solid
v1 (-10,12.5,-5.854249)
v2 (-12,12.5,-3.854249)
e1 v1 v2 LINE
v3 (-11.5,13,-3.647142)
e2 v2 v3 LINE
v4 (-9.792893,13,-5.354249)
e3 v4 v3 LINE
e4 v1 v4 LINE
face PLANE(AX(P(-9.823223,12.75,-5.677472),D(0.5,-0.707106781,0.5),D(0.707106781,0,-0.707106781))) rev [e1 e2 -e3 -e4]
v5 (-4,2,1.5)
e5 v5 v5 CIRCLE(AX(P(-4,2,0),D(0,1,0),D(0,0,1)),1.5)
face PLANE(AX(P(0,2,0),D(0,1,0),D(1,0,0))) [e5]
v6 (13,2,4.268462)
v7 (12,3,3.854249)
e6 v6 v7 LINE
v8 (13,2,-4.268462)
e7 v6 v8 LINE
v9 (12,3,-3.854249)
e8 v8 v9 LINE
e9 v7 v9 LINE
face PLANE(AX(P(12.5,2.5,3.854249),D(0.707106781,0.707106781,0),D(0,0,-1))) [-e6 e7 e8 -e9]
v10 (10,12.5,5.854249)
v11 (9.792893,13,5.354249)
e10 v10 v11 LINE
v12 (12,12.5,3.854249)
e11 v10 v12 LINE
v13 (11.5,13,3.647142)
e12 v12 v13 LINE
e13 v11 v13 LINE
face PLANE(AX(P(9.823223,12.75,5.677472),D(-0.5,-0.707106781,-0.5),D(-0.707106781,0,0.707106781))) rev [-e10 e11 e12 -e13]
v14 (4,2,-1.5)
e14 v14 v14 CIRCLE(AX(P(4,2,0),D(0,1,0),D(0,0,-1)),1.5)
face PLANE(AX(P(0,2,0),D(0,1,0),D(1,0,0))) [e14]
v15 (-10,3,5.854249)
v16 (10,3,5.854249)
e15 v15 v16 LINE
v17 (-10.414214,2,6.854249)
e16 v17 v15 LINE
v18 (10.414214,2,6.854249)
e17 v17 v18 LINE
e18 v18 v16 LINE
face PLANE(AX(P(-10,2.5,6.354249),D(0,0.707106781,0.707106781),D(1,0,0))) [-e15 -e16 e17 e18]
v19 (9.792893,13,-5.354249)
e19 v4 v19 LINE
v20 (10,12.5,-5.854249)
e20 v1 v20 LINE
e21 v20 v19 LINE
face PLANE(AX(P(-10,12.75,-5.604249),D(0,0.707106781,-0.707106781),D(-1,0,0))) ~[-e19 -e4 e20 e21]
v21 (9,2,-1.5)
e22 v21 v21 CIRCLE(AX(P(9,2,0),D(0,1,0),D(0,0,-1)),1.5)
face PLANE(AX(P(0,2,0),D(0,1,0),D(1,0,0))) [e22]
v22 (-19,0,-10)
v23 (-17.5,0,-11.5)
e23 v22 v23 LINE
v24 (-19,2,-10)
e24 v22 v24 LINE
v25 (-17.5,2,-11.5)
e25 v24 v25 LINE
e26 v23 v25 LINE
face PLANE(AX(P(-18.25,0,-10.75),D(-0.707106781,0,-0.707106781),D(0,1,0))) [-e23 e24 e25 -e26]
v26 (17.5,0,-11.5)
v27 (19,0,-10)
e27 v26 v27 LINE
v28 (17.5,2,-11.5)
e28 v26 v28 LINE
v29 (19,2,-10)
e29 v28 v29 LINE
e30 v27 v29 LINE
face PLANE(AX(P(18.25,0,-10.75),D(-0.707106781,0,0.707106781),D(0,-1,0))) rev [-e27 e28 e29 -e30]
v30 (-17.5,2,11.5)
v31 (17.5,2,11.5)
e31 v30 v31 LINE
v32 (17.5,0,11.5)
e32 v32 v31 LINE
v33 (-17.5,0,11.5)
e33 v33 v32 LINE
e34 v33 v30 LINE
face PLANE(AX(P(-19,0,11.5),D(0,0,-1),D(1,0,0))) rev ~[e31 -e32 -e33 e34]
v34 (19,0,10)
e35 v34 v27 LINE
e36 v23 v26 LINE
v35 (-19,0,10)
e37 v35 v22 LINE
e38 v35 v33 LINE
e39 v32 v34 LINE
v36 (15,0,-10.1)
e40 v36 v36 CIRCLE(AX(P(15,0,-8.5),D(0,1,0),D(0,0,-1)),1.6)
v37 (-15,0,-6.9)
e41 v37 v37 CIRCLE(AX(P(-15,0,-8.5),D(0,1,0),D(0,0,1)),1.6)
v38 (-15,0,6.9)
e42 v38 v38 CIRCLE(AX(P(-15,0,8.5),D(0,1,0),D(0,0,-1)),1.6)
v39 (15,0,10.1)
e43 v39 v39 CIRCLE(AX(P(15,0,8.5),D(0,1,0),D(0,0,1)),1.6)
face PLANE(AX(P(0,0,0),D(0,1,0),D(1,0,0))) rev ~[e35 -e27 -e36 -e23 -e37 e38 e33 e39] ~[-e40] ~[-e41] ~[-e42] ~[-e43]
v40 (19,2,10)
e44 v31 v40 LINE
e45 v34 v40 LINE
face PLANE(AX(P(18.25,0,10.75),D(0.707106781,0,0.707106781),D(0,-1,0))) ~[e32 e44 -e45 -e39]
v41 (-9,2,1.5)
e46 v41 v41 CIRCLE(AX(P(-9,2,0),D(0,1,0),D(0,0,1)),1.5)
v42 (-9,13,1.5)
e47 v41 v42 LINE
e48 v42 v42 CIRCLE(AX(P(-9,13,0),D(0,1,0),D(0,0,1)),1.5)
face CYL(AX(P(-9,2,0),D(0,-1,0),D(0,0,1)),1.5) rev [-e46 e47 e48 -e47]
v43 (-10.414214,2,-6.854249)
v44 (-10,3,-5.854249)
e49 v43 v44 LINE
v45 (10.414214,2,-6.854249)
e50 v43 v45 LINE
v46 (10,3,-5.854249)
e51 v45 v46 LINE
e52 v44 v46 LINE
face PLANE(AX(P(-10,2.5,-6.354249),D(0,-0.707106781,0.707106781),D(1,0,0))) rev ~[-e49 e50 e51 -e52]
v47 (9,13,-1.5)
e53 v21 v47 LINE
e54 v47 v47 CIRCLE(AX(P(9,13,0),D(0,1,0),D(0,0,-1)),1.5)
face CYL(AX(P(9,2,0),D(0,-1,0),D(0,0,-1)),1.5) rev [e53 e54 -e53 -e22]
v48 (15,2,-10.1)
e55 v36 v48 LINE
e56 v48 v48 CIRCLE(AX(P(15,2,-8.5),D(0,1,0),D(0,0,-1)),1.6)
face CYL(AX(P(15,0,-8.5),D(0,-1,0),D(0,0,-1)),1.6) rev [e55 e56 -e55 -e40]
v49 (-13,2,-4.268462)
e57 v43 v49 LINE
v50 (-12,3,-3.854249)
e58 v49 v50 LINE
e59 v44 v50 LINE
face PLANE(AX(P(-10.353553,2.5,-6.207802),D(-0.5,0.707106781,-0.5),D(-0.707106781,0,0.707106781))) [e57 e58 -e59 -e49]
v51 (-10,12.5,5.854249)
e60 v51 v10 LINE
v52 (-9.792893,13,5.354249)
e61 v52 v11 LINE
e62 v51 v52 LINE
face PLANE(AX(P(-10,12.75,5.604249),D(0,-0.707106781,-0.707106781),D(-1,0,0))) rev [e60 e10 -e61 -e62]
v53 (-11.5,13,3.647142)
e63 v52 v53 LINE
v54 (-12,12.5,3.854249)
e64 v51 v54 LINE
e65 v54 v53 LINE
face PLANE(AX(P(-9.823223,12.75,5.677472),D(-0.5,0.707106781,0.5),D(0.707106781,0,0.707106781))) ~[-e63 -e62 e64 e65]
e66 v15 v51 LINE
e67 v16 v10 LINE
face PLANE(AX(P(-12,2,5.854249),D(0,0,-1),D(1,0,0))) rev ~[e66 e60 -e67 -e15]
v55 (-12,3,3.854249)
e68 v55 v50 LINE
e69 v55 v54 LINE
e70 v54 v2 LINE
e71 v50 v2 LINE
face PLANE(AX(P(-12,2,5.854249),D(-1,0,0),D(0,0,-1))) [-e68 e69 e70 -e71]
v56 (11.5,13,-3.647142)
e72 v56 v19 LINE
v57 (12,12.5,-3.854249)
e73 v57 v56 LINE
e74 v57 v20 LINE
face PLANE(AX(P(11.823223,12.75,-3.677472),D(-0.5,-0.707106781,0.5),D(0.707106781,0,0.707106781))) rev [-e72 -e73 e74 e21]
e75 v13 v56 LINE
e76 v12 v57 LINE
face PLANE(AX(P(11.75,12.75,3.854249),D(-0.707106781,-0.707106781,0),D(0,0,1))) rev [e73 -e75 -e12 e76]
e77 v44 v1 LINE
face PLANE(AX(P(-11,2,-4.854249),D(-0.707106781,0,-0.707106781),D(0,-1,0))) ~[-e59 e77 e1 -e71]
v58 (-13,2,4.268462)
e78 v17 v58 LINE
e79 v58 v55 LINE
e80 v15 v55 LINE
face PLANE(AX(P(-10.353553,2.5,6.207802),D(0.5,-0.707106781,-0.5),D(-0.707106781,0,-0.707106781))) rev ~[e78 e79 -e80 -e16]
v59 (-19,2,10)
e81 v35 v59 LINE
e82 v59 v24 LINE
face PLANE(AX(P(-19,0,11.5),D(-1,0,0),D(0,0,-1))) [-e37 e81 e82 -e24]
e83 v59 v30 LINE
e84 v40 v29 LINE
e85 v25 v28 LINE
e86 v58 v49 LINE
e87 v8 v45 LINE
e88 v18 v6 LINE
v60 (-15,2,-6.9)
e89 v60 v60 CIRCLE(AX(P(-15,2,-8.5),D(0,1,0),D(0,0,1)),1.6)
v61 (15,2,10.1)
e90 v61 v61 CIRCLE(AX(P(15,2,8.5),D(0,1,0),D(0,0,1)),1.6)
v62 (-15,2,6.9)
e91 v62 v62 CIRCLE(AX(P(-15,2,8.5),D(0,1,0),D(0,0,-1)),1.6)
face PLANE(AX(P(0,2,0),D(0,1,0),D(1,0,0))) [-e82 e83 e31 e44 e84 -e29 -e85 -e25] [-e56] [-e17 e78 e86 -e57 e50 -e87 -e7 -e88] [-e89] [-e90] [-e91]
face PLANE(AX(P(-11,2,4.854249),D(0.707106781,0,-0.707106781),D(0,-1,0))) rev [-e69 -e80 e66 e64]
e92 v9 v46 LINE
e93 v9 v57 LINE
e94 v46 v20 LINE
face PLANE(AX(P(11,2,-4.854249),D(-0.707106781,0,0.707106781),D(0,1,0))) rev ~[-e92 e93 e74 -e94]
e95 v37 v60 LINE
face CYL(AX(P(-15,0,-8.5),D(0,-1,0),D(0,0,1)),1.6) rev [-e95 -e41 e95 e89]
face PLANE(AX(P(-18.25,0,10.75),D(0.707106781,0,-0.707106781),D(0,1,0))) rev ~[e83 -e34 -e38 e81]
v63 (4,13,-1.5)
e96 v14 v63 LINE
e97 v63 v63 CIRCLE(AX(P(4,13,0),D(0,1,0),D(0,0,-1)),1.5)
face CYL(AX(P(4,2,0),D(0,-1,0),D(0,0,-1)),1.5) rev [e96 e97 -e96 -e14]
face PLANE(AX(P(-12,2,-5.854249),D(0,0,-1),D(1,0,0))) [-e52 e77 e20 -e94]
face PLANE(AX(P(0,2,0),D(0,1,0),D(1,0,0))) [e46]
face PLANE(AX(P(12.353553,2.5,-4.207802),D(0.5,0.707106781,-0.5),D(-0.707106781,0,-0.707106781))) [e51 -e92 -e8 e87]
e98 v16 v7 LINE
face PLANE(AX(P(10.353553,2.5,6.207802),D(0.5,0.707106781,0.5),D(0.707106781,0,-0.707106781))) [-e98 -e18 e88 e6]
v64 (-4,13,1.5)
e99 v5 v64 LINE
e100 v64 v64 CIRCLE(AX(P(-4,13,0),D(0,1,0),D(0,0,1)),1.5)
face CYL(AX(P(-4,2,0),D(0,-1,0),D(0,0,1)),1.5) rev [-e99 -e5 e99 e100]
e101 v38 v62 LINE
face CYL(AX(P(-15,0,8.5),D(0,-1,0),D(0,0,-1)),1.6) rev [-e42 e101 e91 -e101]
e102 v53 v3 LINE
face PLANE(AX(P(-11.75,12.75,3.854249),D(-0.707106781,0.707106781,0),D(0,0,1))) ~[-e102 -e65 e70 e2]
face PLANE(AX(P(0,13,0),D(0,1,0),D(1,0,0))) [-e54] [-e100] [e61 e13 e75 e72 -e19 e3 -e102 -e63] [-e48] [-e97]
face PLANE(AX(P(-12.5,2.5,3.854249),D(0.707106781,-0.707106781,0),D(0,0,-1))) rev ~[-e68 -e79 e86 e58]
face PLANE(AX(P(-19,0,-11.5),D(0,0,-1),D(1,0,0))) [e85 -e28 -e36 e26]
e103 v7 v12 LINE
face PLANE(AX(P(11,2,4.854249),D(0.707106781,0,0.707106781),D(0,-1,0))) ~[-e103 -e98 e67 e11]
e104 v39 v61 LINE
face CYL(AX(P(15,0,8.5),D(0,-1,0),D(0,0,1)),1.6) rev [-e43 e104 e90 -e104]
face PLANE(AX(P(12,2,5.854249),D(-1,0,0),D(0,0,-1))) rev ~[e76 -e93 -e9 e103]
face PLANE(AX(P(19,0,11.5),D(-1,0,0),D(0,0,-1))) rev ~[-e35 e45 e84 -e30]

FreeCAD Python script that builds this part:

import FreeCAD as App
import Part
import Sketcher

V = App.Vector


def edges_at(feature, points):
    """Names of the edges that pass closest to the given points."""
    edges = feature.Shape.Edges
    near = lambda p: min(range(len(edges)), key=lambda i: edges[i].distToShape(Part.Vertex(*p))[0])
    return sorted({f"Edge{near(p) + 1}" for p in points})

doc = App.newDocument("Part")
params = doc.addObject("Spreadsheet::Sheet", "Params")
for row, (alias, value) in enumerate([
    ("sketch1_diameter", "3.2 mm"),
    ("sketch1_width", "38 mm"),
    ("sketch1_height", "23 mm"),
    ("pad1_length", "2 mm"),
    ("sketch2_diameter", "3 mm"),
    ("sketch2_width", "24 mm"),
    ("pad2_length", "11 mm"),
    ("chamfer_size", "2 mm"),
    ("chamfer2_size", "1 mm"),
    ("chamfer3_size", "1.5 mm"),
    ("chamfer4_size", "0.5 mm"),
], start=1):
    params.set(f"A{row}", alias)
    params.set(f"B{row}", "=" + value)
    params.setAlias(f"B{row}", alias)

body = doc.addObject("PartDesign::Body", "Body")

# Sketch on XZ plane
sketch1 = doc.addObject("Sketcher::SketchObject", "Sketch")
body.addObject(sketch1)
sketch1.AttachmentSupport = (doc.XZ_Plane, [""])
sketch1.MapMode = "FlatFace"
sketch1.addGeometry(Part.LineSegment(V(-19, -11.5, 0), V(-19, 11.5, 0)), False)
sketch1.addGeometry(Part.LineSegment(V(-19, 11.5, 0), V(19, 11.5, 0)), False)
sketch1.addGeometry(Part.LineSegment(V(19, 11.5, 0), V(19, -11.5, 0)), False)
sketch1.addGeometry(Part.LineSegment(V(19, -11.5, 0), V(-19, -11.5, 0)), False)
sketch1.addGeometry(Part.Circle(V(-15, 8.5, 0), V(0, 0, 1), 1.6), False)
sketch1.addGeometry(Part.Circle(V(15, 8.5, 0), V(0, 0, 1), 1.6), False)
sketch1.addGeometry(Part.Circle(V(-15, -8.5, 0), V(0, 0, 1), 1.6), False)
sketch1.addGeometry(Part.Circle(V(15, -8.5, 0), V(0, 0, 1), 1.6), False)
sketch1.addConstraint(Sketcher.Constraint("Coincident", 0, 2, 1, 1))
sketch1.addConstraint(Sketcher.Constraint("Coincident", 1, 2, 2, 1))
sketch1.addConstraint(Sketcher.Constraint("Coincident", 2, 2, 3, 1))
sketch1.addConstraint(Sketcher.Constraint("Coincident", 3, 2, 0, 1))
sketch1.addConstraint(Sketcher.Constraint("Vertical", 0))
sketch1.addConstraint(Sketcher.Constraint("Horizontal", 1))
sketch1.addConstraint(Sketcher.Constraint("Vertical", 2))
sketch1.addConstraint(Sketcher.Constraint("Horizontal", 3))
sketch1.addConstraint(Sketcher.Constraint("Equal", 4, 5))
sketch1.addConstraint(Sketcher.Constraint("Equal", 5, 6))
sketch1.addConstraint(Sketcher.Constraint("Equal", 6, 7))
sketch1.addConstraint(Sketcher.Constraint("Symmetric", 5, 3, 6, 3, -1, 1))
sketch1.addConstraint(Sketcher.Constraint("Symmetric", 4, 3, 7, 3, -1, 1))
sketch1.addConstraint(Sketcher.Constraint("Symmetric", 0, 2, 2, 2, -1, 1))
sketch1.addConstraint(Sketcher.Constraint("Symmetric", 4, 3, 5, 3, -2))
sketch1.addConstraint(Sketcher.Constraint("Diameter", 4, 3.2))
sketch1.addConstraint(Sketcher.Constraint("DistanceX", 1, 1, 1, 2, 38.0))
sketch1.addConstraint(Sketcher.Constraint("DistanceY", 0, 1, 0, 2, 23.0))
sketch1.addConstraint(Sketcher.Constraint("DistanceX", 4, 3, -1, 1, 15.0))
sketch1.addConstraint(Sketcher.Constraint("DistanceY", 6, 3, 4, 3, 17.0))
sketch1.setExpression("Constraints[15]", "Params.sketch1_diameter")
sketch1.setExpression("Constraints[16]", "Params.sketch1_width")
sketch1.setExpression("Constraints[17]", "Params.sketch1_height")
pad1 = doc.addObject("PartDesign::Pad", "Pad")
body.addObject(pad1)
pad1.Profile = sketch1
pad1.setExpression("Length", "Params.pad1_length")
pad1.Reversed = True

# Sketch on XZ plane
sketch2 = doc.addObject("Sketcher::SketchObject", "Sketch001")
body.addObject(sketch2)
sketch2.AttachmentSupport = (doc.XZ_Plane, [""])
sketch2.MapMode = "FlatFace"
sketch2.AttachmentOffset = App.Placement(V(0, 0, -2), App.Rotation())
sketch2.addGeometry(Part.LineSegment(V(-12, -5.9, 0), V(-12, 5.9, 0)), False)
sketch2.addGeometry(Part.LineSegment(V(-12, 5.9, 0), V(12, 5.9, 0)), False)
sketch2.addGeometry(Part.LineSegment(V(12, 5.9, 0), V(12, -5.9, 0)), False)
sketch2.addGeometry(Part.LineSegment(V(12, -5.9, 0), V(-12, -5.9, 0)), False)
sketch2.addGeometry(Part.Circle(V(-9, 0, 0), V(0, 0, 1), 1.5), False)
sketch2.addGeometry(Part.Circle(V(-4, 0, 0), V(0, 0, 1), 1.5), False)
sketch2.addGeometry(Part.Circle(V(4, 0, 0), V(0, 0, 1), 1.5), False)
sketch2.addGeometry(Part.Circle(V(9, 0, 0), V(0, 0, 1), 1.5), False)
sketch2.addConstraint(Sketcher.Constraint("Coincident", 0, 2, 1, 1))
sketch2.addConstraint(Sketcher.Constraint("Coincident", 1, 2, 2, 1))
sketch2.addConstraint(Sketcher.Constraint("Coincident", 2, 2, 3, 1))
sketch2.addConstraint(Sketcher.Constraint("Coincident", 3, 2, 0, 1))
sketch2.addConstraint(Sketcher.Constraint("Vertical", 0))
sketch2.addConstraint(Sketcher.Constraint("Horizontal", 1))
sketch2.addConstraint(Sketcher.Constraint("Vertical", 2))
sketch2.addConstraint(Sketcher.Constraint("Horizontal", 3))
sketch2.addConstraint(Sketcher.Constraint("Equal", 4, 5))
sketch2.addConstraint(Sketcher.Constraint("Equal", 5, 6))
sketch2.addConstraint(Sketcher.Constraint("Equal", 6, 7))
sketch2.addConstraint(Sketcher.Constraint("Symmetric", 5, 3, 6, 3, -1, 1))
sketch2.addConstraint(Sketcher.Constraint("Symmetric", 4, 3, 7, 3, -1, 1))
sketch2.addConstraint(Sketcher.Constraint("Symmetric", 0, 2, 2, 2, -1, 1))
sketch2.addConstraint(Sketcher.Constraint("PointOnObject", 4, 3, -1))
sketch2.addConstraint(Sketcher.Constraint("PointOnObject", 5, 3, -1))
sketch2.addConstraint(Sketcher.Constraint("Diameter", 4, 3.0))
sketch2.addConstraint(Sketcher.Constraint("DistanceX", 1, 1, 1, 2, 24.0))
sketch2.addConstraint(Sketcher.Constraint("DistanceX", 4, 3, -1, 1, 9.0))
sketch2.addConstraint(Sketcher.Constraint("DistanceX", 5, 3, -1, 1, 4.0))
sketch2.addConstraint(Sketcher.Constraint("DistanceY", 0, 1, 0, 2, 11.708497))
sketch2.setExpression("Constraints[16]", "Params.sketch2_diameter")
sketch2.setExpression("Constraints[17]", "Params.sketch2_width")
pad2 = doc.addObject("PartDesign::Pad", "Pad001")
body.addObject(pad2)
pad2.Profile = sketch2
pad2.setExpression("Length", "Params.pad2_length")
pad2.Reversed = True
doc.recompute()

chamfer = doc.addObject("PartDesign::Chamfer", "Chamfer")
body.addObject(chamfer)
chamfer.Base = (pad2, edges_at(pad2, [
    (12, 7.5, 5.854),
    (12, 7.5, -5.854),
    (-12, 7.5, -5.854),
    (-12, 7.5, 5.854),
]))
chamfer.setExpression("Size", "Params.chamfer_size")
doc.recompute()

chamfer2 = doc.addObject("PartDesign::Chamfer", "Chamfer001")
body.addObject(chamfer2)
chamfer2.Base = (chamfer, edges_at(chamfer, [
    (0, 2, 5.854),
    (-12, 2, 0),
    (0, 2, -5.854),
    (12, 2, 0),
    (-11, 2, 4.854),
    (-11, 2, -4.854),
    (11, 2, -4.854),
    (11, 2, 4.854),
]))
chamfer2.setExpression("Size", "Params.chamfer2_size")
doc.recompute()

chamfer3 = doc.addObject("PartDesign::Chamfer", "Chamfer002")
body.addObject(chamfer3)
chamfer3.Base = (chamfer2, edges_at(chamfer2, [
    (19, 1, 11.5),
    (-19, 1, 11.5),
    (-19, 1, -11.5),
    (19, 1, -11.5),
]))
chamfer3.setExpression("Size", "Params.chamfer3_size")
doc.recompute()

chamfer4 = doc.addObject("PartDesign::Chamfer", "Chamfer003")
body.addObject(chamfer4)
chamfer4.Base = (chamfer3, edges_at(chamfer3, [
    (0, 13, 5.854),
    (-12, 13, 0),
    (12, 13, 0),
    (0, 13, -5.854),
    (11, 13, 4.854),
    (11, 13, -4.854),
    (-11, 13, -4.854),
    (-11, 13, 4.854),
]))
chamfer4.setExpression("Size", "Params.chamfer4_size")

doc.recompute()
